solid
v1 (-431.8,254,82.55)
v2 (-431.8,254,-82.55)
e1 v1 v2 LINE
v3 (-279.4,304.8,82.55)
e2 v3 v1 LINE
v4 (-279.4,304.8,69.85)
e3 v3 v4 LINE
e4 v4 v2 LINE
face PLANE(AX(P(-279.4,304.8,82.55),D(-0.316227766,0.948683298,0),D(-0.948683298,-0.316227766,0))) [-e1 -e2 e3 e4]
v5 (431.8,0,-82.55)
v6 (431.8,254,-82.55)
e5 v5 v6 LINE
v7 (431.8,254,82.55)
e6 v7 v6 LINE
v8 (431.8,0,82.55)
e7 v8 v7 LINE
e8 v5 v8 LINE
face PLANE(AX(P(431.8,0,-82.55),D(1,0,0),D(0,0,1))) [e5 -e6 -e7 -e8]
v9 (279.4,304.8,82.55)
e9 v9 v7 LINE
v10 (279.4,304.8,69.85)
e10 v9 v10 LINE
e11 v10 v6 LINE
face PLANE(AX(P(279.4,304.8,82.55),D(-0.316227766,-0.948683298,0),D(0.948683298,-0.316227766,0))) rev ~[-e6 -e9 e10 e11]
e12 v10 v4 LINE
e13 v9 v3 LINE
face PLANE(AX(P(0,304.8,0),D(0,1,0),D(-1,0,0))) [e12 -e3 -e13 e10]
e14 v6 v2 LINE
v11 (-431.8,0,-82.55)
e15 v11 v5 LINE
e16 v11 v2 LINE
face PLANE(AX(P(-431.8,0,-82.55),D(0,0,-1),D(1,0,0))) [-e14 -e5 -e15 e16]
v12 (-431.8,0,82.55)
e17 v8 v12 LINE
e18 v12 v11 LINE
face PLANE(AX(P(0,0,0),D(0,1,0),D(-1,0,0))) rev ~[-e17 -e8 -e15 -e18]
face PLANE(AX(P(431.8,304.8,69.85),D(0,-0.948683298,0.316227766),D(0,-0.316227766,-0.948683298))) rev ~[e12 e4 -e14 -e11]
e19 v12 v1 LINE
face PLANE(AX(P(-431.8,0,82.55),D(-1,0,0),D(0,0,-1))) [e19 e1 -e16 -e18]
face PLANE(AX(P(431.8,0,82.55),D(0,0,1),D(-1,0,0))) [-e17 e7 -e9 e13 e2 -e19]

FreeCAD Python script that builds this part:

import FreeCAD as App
import Part
import Sketcher

V = App.Vector
Q = App.Units.Quantity

doc = App.newDocument("Part")
body = doc.addObject("PartDesign::Body", "Body")

sketch1 = doc.addObject("Sketcher::SketchObject", "Sketch")
body.addObject(sketch1)
sketch1.AttachmentSupport = (doc.XZ_Plane, [""])
sketch1.MapMode = "FlatFace"
sketch1.addGeometry(Part.LineSegment(V(432, -83, 0), V(-432, -83, 0)), False)
sketch1.addGeometry(Part.LineSegment(V(-432, -83, 0), V(-432, 83, 0)), False)
sketch1.addGeometry(Part.LineSegment(V(-432, 83, 0), V(432, 83, 0)), False)
sketch1.addGeometry(Part.LineSegment(V(432, 83, 0), V(432, -83, 0)), False)
sketch1.addConstraint(Sketcher.Constraint("Coincident", 0, 2, 1, 1))
sketch1.addConstraint(Sketcher.Constraint("Coincident", 1, 2, 2, 1))
sketch1.addConstraint(Sketcher.Constraint("Coincident", 2, 2, 3, 1))
sketch1.addConstraint(Sketcher.Constraint("Coincident", 3, 2, 0, 1))
sketch1.addConstraint(Sketcher.Constraint("Horizontal", 0))
sketch1.addConstraint(Sketcher.Constraint("Vertical", 1))
sketch1.addConstraint(Sketcher.Constraint("Horizontal", 2))
sketch1.addConstraint(Sketcher.Constraint("Vertical", 3))
sketch1.addConstraint(Sketcher.Constraint("Symmetric", 0, 2, 2, 2, -1, 1))
sketch1.addConstraint(Sketcher.Constraint("DistanceX", 0, 2, 0, 1, Q("34 in")))
sketch1.addConstraint(Sketcher.Constraint("DistanceY", 1, 1, 1, 2, Q("6.5 in")))
pad1 = doc.addObject("PartDesign::Pad", "Pad")
body.addObject(pad1)
pad1.Profile = sketch1
pad1.Length = Q("12 in")
pad1.Reversed = True

sketch2 = doc.addObject("Sketcher::SketchObject", "Sketch001")
body.addObject(sketch2)
sketch2.AttachmentSupport = (doc.YZ_Plane, [""])
sketch2.MapMode = "FlatFace"
sketch2.AttachmentOffset = App.Placement(V(0, 0, 17 * 25.4), App.Rotation())
sketch2.addGeometry(Part.LineSegment(V(305, -83, 0), V(305, 70, 0)), False)
sketch2.addGeometry(Part.LineSegment(V(305, 70, 0), V(254, -83, 0)), False)
sketch2.addGeometry(Part.LineSegment(V(254, -83, 0), V(305, -83, 0)), False)
sketch2.addConstraint(Sketcher.Constraint("Coincident", 0, 2, 1, 1))
sketch2.addConstraint(Sketcher.Constraint("Coincident", 1, 2, 2, 1))
sketch2.addConstraint(Sketcher.Constraint("Coincident", 2, 2, 0, 1))
sketch2.addConstraint(Sketcher.Constraint("Vertical", 0))
sketch2.addConstraint(Sketcher.Constraint("Horizontal", 2))
sketch2.addConstraint(Sketcher.Constraint("DistanceX", 2, 1, 2, 2, Q("2 in")))
sketch2.addConstraint(Sketcher.Constraint("DistanceY", 0, 1, 0, 2, Q("6 in")))
sketch2.addConstraint(Sketcher.Constraint("DistanceX", -1, 1, 0, 2, Q("12 in")))
sketch2.addConstraint(Sketcher.Constraint("DistanceY", -1, 1, 0, 2, Q("2.75 in")))
pocket1 = doc.addObject("PartDesign::Pocket", "Pocket")
body.addObject(pocket1)
pocket1.Profile = sketch2
pocket1.Type = "ThroughAll"

sketch3 = doc.addObject("Sketcher::SketchObject", "Sketch002")
body.addObject(sketch3)
sketch3.AttachmentSupport = (doc.XY_Plane, [""])
sketch3.MapMode = "FlatFace"
sketch3.AttachmentOffset = App.Placement(V(0, 0, 3.25 * 25.4), App.Rotation())
sketch3.addGeometry(Part.LineSegment(V(432, 305, 0), V(279, 305, 0)), False)
sketch3.addGeometry(Part.LineSegment(V(279, 305, 0), V(432, 254, 0)), False)
sketch3.addGeometry(Part.LineSegment(V(432, 254, 0), V(432, 305, 0)), False)
sketch3.addConstraint(Sketcher.Constraint("Coincident", 0, 2, 1, 1))
sketch3.addConstraint(Sketcher.Constraint("Coincident", 1, 2, 2, 1))
sketch3.addConstraint(Sketcher.Constraint("Coincident", 2, 2, 0, 1))
sketch3.addConstraint(Sketcher.Constraint("Horizontal", 0))
sketch3.addConstraint(Sketcher.Constraint("Vertical", 2))
sketch3.addConstraint(Sketcher.Constraint("DistanceX", 0, 2, 0, 1, Q("6 in")))
sketch3.addConstraint(Sketcher.Constraint("DistanceY", 2, 1, 2, 2, Q("2 in")))
sketch3.addConstraint(Sketcher.Constraint("DistanceX", -1, 1, 0, 2, Q("11 in")))
sketch3.addConstraint(Sketcher.Constraint("DistanceY", -1, 1, 0, 2, Q("12 in")))
pocket2 = doc.addObject("PartDesign::Pocket", "Pocket001")
body.addObject(pocket2)
pocket2.Profile = sketch3
pocket2.Type = "ThroughAll"

sketch4 = doc.addObject("Sketcher::SketchObject", "Sketch003")
body.addObject(sketch4)
sketch4.AttachmentSupport = (doc.XY_Plane, [""])
sketch4.MapMode = "FlatFace"
sketch4.AttachmentOffset = App.Placement(V(0, 0, 3.25 * 25.4), App.Rotation())
sketch4.addGeometry(Part.LineSegment(V(-279, 305, 0), V(-432, 305, 0)), False)
sketch4.addGeometry(Part.LineSegment(V(-432, 305, 0), V(-432, 254, 0)), False)
sketch4.addGeometry(Part.LineSegment(V(-432, 254, 0), V(-279, 305, 0)), False)
sketch4.addConstraint(Sketcher.Constraint("Coincident", 0, 2, 1, 1))
sketch4.addConstraint(Sketcher.Constraint("Coincident", 1, 2, 2, 1))
sketch4.addConstraint(Sketcher.Constraint("Coincident", 2, 2, 0, 1))
sketch4.addConstraint(Sketcher.Constraint("Horizontal", 0))
sketch4.addConstraint(Sketcher.Constraint("Vertical", 1))
sketch4.addConstraint(Sketcher.Constraint("DistanceX", 0, 2, 0, 1, Q("6 in")))
sketch4.addConstraint(Sketcher.Constraint("DistanceY", 1, 2, 1, 1, Q("2 in")))
sketch4.addConstraint(Sketcher.Constraint("DistanceX", 0, 2, -1, 1, Q("17 in")))
sketch4.addConstraint(Sketcher.Constraint("DistanceY", -1, 1, 0, 2, Q("12 in")))
pocket3 = doc.addObject("PartDesign::Pocket", "Pocket002")
body.addObject(pocket3)
pocket3.Profile = sketch4
pocket3.Type = "ThroughAll"

doc.recompute()
